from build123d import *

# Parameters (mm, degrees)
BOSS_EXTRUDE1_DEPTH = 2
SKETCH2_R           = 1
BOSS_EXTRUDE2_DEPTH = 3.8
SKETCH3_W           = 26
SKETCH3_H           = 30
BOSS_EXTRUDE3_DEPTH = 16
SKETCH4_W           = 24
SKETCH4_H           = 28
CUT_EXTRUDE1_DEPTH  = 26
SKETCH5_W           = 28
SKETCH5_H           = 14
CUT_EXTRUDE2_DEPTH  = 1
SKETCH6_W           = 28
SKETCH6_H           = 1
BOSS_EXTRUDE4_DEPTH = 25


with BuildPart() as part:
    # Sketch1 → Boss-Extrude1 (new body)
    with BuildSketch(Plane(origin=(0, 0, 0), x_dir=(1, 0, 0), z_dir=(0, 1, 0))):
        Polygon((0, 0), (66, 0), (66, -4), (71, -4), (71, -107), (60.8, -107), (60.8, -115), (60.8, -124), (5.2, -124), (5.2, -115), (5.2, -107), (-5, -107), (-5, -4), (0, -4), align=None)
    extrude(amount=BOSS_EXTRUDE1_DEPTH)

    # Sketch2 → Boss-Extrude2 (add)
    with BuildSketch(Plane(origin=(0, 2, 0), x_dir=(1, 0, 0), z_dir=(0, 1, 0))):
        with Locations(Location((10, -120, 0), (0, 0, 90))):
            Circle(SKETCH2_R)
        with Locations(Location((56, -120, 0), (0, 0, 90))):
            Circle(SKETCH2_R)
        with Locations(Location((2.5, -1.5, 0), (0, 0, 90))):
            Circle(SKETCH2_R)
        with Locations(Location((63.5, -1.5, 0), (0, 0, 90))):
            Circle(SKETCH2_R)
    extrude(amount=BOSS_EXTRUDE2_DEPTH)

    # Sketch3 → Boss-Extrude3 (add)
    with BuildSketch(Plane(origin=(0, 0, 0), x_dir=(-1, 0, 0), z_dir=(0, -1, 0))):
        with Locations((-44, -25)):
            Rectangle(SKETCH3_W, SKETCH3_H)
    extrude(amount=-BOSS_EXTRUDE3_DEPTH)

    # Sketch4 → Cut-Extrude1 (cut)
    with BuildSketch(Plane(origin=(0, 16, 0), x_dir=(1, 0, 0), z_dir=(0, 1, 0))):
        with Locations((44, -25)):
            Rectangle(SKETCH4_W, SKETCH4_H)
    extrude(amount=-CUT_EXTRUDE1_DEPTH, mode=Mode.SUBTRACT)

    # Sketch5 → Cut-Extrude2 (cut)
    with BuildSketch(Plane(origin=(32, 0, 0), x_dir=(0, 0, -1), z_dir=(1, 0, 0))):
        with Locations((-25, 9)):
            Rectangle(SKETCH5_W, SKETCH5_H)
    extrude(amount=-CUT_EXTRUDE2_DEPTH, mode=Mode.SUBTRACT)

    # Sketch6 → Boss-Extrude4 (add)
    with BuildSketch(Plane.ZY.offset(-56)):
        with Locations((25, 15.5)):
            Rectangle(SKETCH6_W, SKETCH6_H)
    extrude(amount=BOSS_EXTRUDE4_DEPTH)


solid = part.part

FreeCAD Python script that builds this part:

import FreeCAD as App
import Part
import Sketcher
Q = App.Units.Quantity

doc = App.newDocument("Part")
body = doc.addObject("PartDesign::Body", "Body")

# Sketch on XZ plane
sketch1 = body.newObject("Sketcher::SketchObject", "Sketch")
sketch1.AttachmentSupport = (doc.getObject("XZ_Plane"), [""])
sketch1.MapMode = "FlatFace"
sketch1.addGeometry([
    Part.LineSegment(App.Vector(66, 0, 0), App.Vector(0, 0, 0)),  # 0
    Part.LineSegment(App.Vector(0, 0, 0), App.Vector(0, 4, 0)),  # 1
    Part.LineSegment(App.Vector(0, 4, 0), App.Vector(-5, 4, 0)),  # 2
    Part.LineSegment(App.Vector(-5, 4, 0), App.Vector(-5, 107, 0)),  # 3
    Part.LineSegment(App.Vector(-5, 107, 0), App.Vector(5.2, 107, 0)),  # 4
    Part.LineSegment(App.Vector(5.2, 107, 0), App.Vector(5.2, 124, 0)),  # 5
    Part.LineSegment(App.Vector(5.2, 124, 0), App.Vector(60.8, 124, 0)),  # 6
    Part.LineSegment(App.Vector(60.8, 124, 0), App.Vector(60.8, 107, 0)),  # 7
    Part.LineSegment(App.Vector(60.8, 107, 0), App.Vector(71, 107, 0)),  # 8
    Part.LineSegment(App.Vector(71, 107, 0), App.Vector(71, 4, 0)),  # 9
    Part.LineSegment(App.Vector(71, 4, 0), App.Vector(66, 4, 0)),  # 10
    Part.LineSegment(App.Vector(66, 4, 0), App.Vector(66, 0, 0)),  # 11
], False)
sketch1.addConstraint([
    Sketcher.Constraint("Coincident", 0, 2, 1, 1),
    Sketcher.Constraint("Coincident", 1, 2, 2, 1),
    Sketcher.Constraint("Coincident", 2, 2, 3, 1),
    Sketcher.Constraint("Coincident", 3, 2, 4, 1),
    Sketcher.Constraint("Coincident", 4, 2, 5, 1),
    Sketcher.Constraint("Coincident", 5, 2, 6, 1),
    Sketcher.Constraint("Coincident", 6, 2, 7, 1),
    Sketcher.Constraint("Coincident", 7, 2, 8, 1),
    Sketcher.Constraint("Coincident", 8, 2, 9, 1),
    Sketcher.Constraint("Coincident", 9, 2, 10, 1),
    Sketcher.Constraint("Coincident", 10, 2, 11, 1),
    Sketcher.Constraint("Coincident", 11, 2, 0, 1),
    Sketcher.Constraint("Horizontal", 0),
    Sketcher.Constraint("Vertical", 1),
    Sketcher.Constraint("Horizontal", 2),
    Sketcher.Constraint("Vertical", 3),
    Sketcher.Constraint("Horizontal", 4),
    Sketcher.Constraint("Vertical", 5),
    Sketcher.Constraint("Horizontal", 6),
    Sketcher.Constraint("Vertical", 7),
    Sketcher.Constraint("Horizontal", 8),
    Sketcher.Constraint("Vertical", 9),
    Sketcher.Constraint("Horizontal", 10),
    Sketcher.Constraint("Vertical", 11),
    Sketcher.Constraint("Coincident", 0, 2, -1, 1),
    Sketcher.Constraint("Horizontal", 4, 2, 7, 2),
    Sketcher.Constraint("Horizontal", 2, 2, 9, 2),
    Sketcher.Constraint("Equal", 4, 8),
    Sketcher.Constraint("Equal", 2, 10),
    Sketcher.Constraint("DistanceX", 0, 2, 0, 1, Q("66 mm")),
    Sketcher.Constraint("DistanceX", 2, 2, 2, 1, Q("5 mm")),
    Sketcher.Constraint("DistanceY", 1, 1, 1, 2, Q("4 mm")),
    Sketcher.Constraint("DistanceY", 3, 1, 3, 2, Q("103 mm")),
    Sketcher.Constraint("DistanceY", 5, 1, 5, 2, Q("17 mm")),
    Sketcher.Constraint("DistanceX", 4, 1, 4, 2, Q("10.2 mm")),
])
pad1 = body.newObject("PartDesign::Pad", "Pad")
pad1.Profile = sketch1
pad1.Length = 2
pad1.Reversed = True

# Sketch on XZ plane
sketch2 = body.newObject("Sketcher::SketchObject", "Sketch001")
sketch2.AttachmentSupport = (doc.getObject("XZ_Plane"), [""])
sketch2.MapMode = "FlatFace"
sketch2.AttachmentOffset = App.Placement(App.Vector(0, 0, -2), App.Rotation())
sketch2.addGeometry([
    Part.Circle(App.Vector(10, 120, 0), App.Vector(0, 0, 1), 1),
    Part.Circle(App.Vector(56, 120, 0), App.Vector(0, 0, 1), 1),
    Part.Circle(App.Vector(2.5, 1.5, 0), App.Vector(0, 0, 1), 1),
    Part.Circle(App.Vector(63.5, 1.5, 0), App.Vector(0, 0, 1), 1),
], False)
sketch2.addConstraint([
    Sketcher.Constraint("Equal", 0, 1),
    Sketcher.Constraint("Equal", 1, 2),
    Sketcher.Constraint("Equal", 2, 3),
    Sketcher.Constraint("Horizontal", 0, 3, 1, 3),
    Sketcher.Constraint("Horizontal", 2, 3, 3, 3),
    Sketcher.Constraint("Diameter", 0, Q("2 mm")),
    Sketcher.Constraint("DistanceX", -1, 1, 0, 3, Q("10 mm")),
    Sketcher.Constraint("DistanceY", -1, 1, 0, 3, Q("120 mm")),
    Sketcher.Constraint("DistanceX", -1, 1, 1, 3, Q("56 mm")),
    Sketcher.Constraint("DistanceX", 2, 3, 3, 3, Q("61 mm")),
    Sketcher.Constraint("DistanceX", -1, 1, 2, 3, Q("2.5 mm")),
    Sketcher.Constraint("DistanceY", -1, 1, 2, 3, Q("1.5 mm")),
])
pad2 = body.newObject("PartDesign::Pad", "Pad001")
pad2.Profile = sketch2
pad2.Length = 3.8
pad2.Reversed = True

# Sketch on XZ plane
sketch3 = body.newObject("Sketcher::SketchObject", "Sketch002")
sketch3.AttachmentSupport = (doc.getObject("XZ_Plane"), [""])
sketch3.MapMode = "FlatFace"
sketch3.addGeometry([
    Part.LineSegment(App.Vector(57, 10, 0), App.Vector(57, 40, 0)),
    Part.LineSegment(App.Vector(57, 40, 0), App.Vector(31, 40, 0)),
    Part.LineSegment(App.Vector(31, 40, 0), App.Vector(31, 10, 0)),
    Part.LineSegment(App.Vector(31, 10, 0), App.Vector(57, 10, 0)),
], False)
sketch3.addConstraint([
    Sketcher.Constraint("Coincident", 0, 2, 1, 1),
    Sketcher.Constraint("Coincident", 1, 2, 2, 1),
    Sketcher.Constraint("Coincident", 2, 2, 3, 1),
    Sketcher.Constraint("Coincident", 3, 2, 0, 1),
    Sketcher.Constraint("Vertical", 0),
    Sketcher.Constraint("Horizontal", 1),
    Sketcher.Constraint("Vertical", 2),
    Sketcher.Constraint("Horizontal", 3),
    Sketcher.Constraint("DistanceX", 1, 2, 1, 1, Q("26 mm")),
    Sketcher.Constraint("DistanceY", 0, 1, 0, 2, Q("30 mm")),
    Sketcher.Constraint("DistanceX", -1, 1, 0, 2, Q("57 mm")),
    Sketcher.Constraint("DistanceY", -1, 1, 0, 2, Q("40 mm")),
])
pad3 = body.newObject("PartDesign::Pad", "Pad002")
pad3.Profile = sketch3
pad3.Length = 16
pad3.Reversed = True

# Sketch on XZ plane
sketch4 = body.newObject("Sketcher::SketchObject", "Sketch003")
sketch4.AttachmentSupport = (doc.getObject("XZ_Plane"), [""])
sketch4.MapMode = "FlatFace"
sketch4.AttachmentOffset = App.Placement(App.Vector(0, 0, -16), App.Rotation())
sketch4.addGeometry([
    Part.LineSegment(App.Vector(32, 11, 0), App.Vector(32, 39, 0)),
    Part.LineSegment(App.Vector(32, 39, 0), App.Vector(56, 39, 0)),
    Part.LineSegment(App.Vector(56, 39, 0), App.Vector(56, 11, 0)),
    Part.LineSegment(App.Vector(56, 11, 0), App.Vector(32, 11, 0)),
], False)
sketch4.addConstraint([
    Sketcher.Constraint("Coincident", 0, 2, 1, 1),
    Sketcher.Constraint("Coincident", 1, 2, 2, 1),
    Sketcher.Constraint("Coincident", 2, 2, 3, 1),
    Sketcher.Constraint("Coincident", 3, 2, 0, 1),
    Sketcher.Constraint("Vertical", 0),
    Sketcher.Constraint("Horizontal", 1),
    Sketcher.Constraint("Vertical", 2),
    Sketcher.Constraint("Horizontal", 3),
    Sketcher.Constraint("DistanceX", 1, 1, 1, 2, Q("24 mm")),
    Sketcher.Constraint("DistanceY", 0, 1, 0, 2, Q("28 mm")),
    Sketcher.Constraint("DistanceX", -1, 1, 0, 2, Q("32 mm")),
    Sketcher.Constraint("DistanceY", -1, 1, 0, 2, Q("39 mm")),
])
pocket1 = body.newObject("PartDesign::Pocket", "Pocket")
pocket1.Profile = sketch4
pocket1.Length = 26
pocket1.Reversed = True

# Sketch on YZ plane
sketch5 = body.newObject("Sketcher::SketchObject", "Sketch004")
sketch5.AttachmentSupport = (doc.getObject("YZ_Plane"), [""])
sketch5.MapMode = "FlatFace"
sketch5.AttachmentOffset = App.Placement(App.Vector(0, 0, 32), App.Rotation())
sketch5.addGeometry([
    Part.LineSegment(App.Vector(16, 39, 0), App.Vector(2, 39, 0)),
    Part.LineSegment(App.Vector(2, 39, 0), App.Vector(2, 11, 0)),
    Part.LineSegment(App.Vector(2, 11, 0), App.Vector(16, 11, 0)),
    Part.LineSegment(App.Vector(16, 11, 0), App.Vector(16, 39, 0)),
], False)
sketch5.addConstraint([
    Sketcher.Constraint("Coincident", 0, 2, 1, 1),
    Sketcher.Constraint("Coincident", 1, 2, 2, 1),
    Sketcher.Constraint("Coincident", 2, 2, 3, 1),
    Sketcher.Constraint("Coincident", 3, 2, 0, 1),
    Sketcher.Constraint("Horizontal", 0),
    Sketcher.Constraint("Vertical", 1),
    Sketcher.Constraint("Horizontal", 2),
    Sketcher.Constraint("Vertical", 3),
    Sketcher.Constraint("DistanceX", 0, 2, 0, 1, Q("14 mm")),
    Sketcher.Constraint("DistanceY", 1, 2, 1, 1, Q("28 mm")),
    Sketcher.Constraint("DistanceX", -1, 1, 0, 2, Q("2 mm")),
    Sketcher.Constraint("DistanceY", -1, 1, 0, 2, Q("39 mm")),
])
pocket2 = body.newObject("PartDesign::Pocket", "Pocket001")
pocket2.Profile = sketch5
pocket2.Length = 1

# Sketch on YZ plane
sketch6 = body.newObject("Sketcher::SketchObject", "Sketch005")
sketch6.AttachmentSupport = (doc.getObject("YZ_Plane"), [""])
sketch6.MapMode = "FlatFace"
sketch6.AttachmentOffset = App.Placement(App.Vector(0, 0, 56), App.Rotation())
sketch6.addGeometry([
    Part.LineSegment(App.Vector(16, 11, 0), App.Vector(15, 11, 0)),
    Part.LineSegment(App.Vector(15, 11, 0), App.Vector(15, 39, 0)),
    Part.LineSegment(App.Vector(15, 39, 0), App.Vector(16, 39, 0)),
    Part.LineSegment(App.Vector(16, 39, 0), App.Vector(16, 11, 0)),
], False)
sketch6.addConstraint([
    Sketcher.Constraint("Coincident", 0, 2, 1, 1),
    Sketcher.Constraint("Coincident", 1, 2, 2, 1),
    Sketcher.Constraint("Coincident", 2, 2, 3, 1),
    Sketcher.Constraint("Coincident", 3, 2, 0, 1),
    Sketcher.Constraint("Horizontal", 0),
    Sketcher.Constraint("Vertical", 1),
    Sketcher.Constraint("Horizontal", 2),
    Sketcher.Constraint("Vertical", 3),
    Sketcher.Constraint("DistanceX", 0, 2, 0, 1, Q("1 mm")),
    Sketcher.Constraint("DistanceY", 1, 1, 1, 2, Q("28 mm")),
    Sketcher.Constraint("DistanceX", -1, 1, 0, 2, Q("15 mm")),
    Sketcher.Constraint("DistanceY", -1, 1, 0, 2, Q("11 mm")),
])
pad4 = body.newObject("PartDesign::Pad", "Pad003")
pad4.Profile = sketch6
pad4.Length = 25
pad4.Reversed = True

doc.recompute()
